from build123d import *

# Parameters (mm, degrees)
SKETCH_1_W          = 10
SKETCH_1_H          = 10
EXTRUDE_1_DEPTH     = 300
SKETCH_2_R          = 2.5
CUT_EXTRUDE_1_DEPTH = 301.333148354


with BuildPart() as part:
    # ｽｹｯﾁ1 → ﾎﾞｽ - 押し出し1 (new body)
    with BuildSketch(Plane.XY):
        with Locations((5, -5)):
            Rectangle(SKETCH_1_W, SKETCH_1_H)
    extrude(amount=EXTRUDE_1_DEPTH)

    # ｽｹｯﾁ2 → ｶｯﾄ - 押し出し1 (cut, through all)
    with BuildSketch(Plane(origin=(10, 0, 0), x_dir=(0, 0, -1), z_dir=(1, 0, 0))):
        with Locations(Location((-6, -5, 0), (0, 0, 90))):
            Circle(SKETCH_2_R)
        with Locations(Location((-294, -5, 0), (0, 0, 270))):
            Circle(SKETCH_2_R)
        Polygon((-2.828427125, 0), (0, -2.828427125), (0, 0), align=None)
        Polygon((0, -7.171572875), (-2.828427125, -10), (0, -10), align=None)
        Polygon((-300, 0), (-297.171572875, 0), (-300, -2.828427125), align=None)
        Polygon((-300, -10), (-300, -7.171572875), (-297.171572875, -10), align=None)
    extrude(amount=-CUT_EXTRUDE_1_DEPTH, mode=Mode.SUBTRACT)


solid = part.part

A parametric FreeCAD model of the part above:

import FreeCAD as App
import Part
import Sketcher
from FreeCAD import Vector
Q = App.Units.Quantity


def add_polygon(sketch, points):
    """Adds a closed chain of lines whose ends are joined by coincident constraints."""
    first, n = sketch.GeometryCount, len(points)
    for a, b in zip(points, points[1:] + points[:1]):
        sketch.addGeometry(Part.LineSegment(App.Vector(*a, 0), App.Vector(*b, 0)), False)
    for i in range(n):
        sketch.addConstraint(Sketcher.Constraint("Coincident", first + i, 2, first + (i + 1) % n, 1))

doc = App.newDocument("Part")
body = doc.addObject("PartDesign::Body", "Body")

# Sketch on XY plane
sketch1 = body.newObject("Sketcher::SketchObject", "Sketch")
sketch1.AttachmentSupport = (doc.getObject("XY_Plane"), [""])
sketch1.MapMode = "FlatFace"
add_polygon(sketch1, [(0, 0), (0, -10), (10, -10), (10, 0)])  # lines 0-3
sketch1.addConstraint([
    Sketcher.Constraint("Vertical", 0),
    Sketcher.Constraint("Horizontal", 1),
    Sketcher.Constraint("Vertical", 2),
    Sketcher.Constraint("Horizontal", 3),
    Sketcher.Constraint("Coincident", 3, 2, -1, 1),
    Sketcher.Constraint("Equal", 3, 0),
    Sketcher.Constraint("DistanceX", 1, 1, 1, 2, Q("10 mm")),
])
pad1 = body.newObject("PartDesign::Pad", "Pad")
pad1.Profile = sketch1
pad1.Length = 300

# Sketch on YZ plane
sketch2 = body.newObject("Sketcher::SketchObject", "Sketch001")
sketch2.AttachmentSupport = (doc.getObject("YZ_Plane"), [""])
sketch2.MapMode = "FlatFace"
sketch2.AttachmentOffset = App.Placement(Vector(0, 0, 10), App.Rotation())
sketch2.addGeometry(Part.Circle(Vector(-5, 6, 0), Vector(0, 0, 1), 2.5), False)  # 0
sketch2.addGeometry(Part.Circle(Vector(-5, 294, 0), Vector(0, 0, 1), 2.5), False)  # 1
add_polygon(sketch2, [(0, 2.8), (-2.8, 0), (0, 0)])  # lines 2-4
add_polygon(sketch2, [(-7.2, 0), (-10, 2.8), (-10, 0)])  # lines 5-7
add_polygon(sketch2, [(0, 297.2), (0, 300), (-2.8, 300)])  # lines 8-10
add_polygon(sketch2, [(-7.2, 300), (-10, 300), (-10, 297.2)])  # lines 11-13
sketch2.addConstraint([
    Sketcher.Constraint("Horizontal", 3),
    Sketcher.Constraint("Vertical", 4),
    Sketcher.Constraint("Vertical", 6),
    Sketcher.Constraint("Horizontal", 7),
    Sketcher.Constraint("Vertical", 8),
    Sketcher.Constraint("Horizontal", 9),
    Sketcher.Constraint("Horizontal", 11),
    Sketcher.Constraint("Vertical", 12),
    Sketcher.Constraint("Coincident", 3, 2, -1, 1),
    Sketcher.Constraint("Equal", 0, 1),
    Sketcher.Constraint("PointOnObject", 6, 2, -1),
    Sketcher.Constraint("PointOnObject", 8, 2, -2),
    Sketcher.Constraint("Perpendicular", 2, 5),
    Sketcher.Constraint("Parallel", 5, 10),
    Sketcher.Constraint("Perpendicular", 10, 13),
    Sketcher.Constraint("Horizontal", 4, 2, 5, 2),
    Sketcher.Constraint("Horizontal", 9, 2, 11, 2),
    Sketcher.Constraint("Horizontal", 10, 2, 12, 2),
    Sketcher.Constraint("Vertical", 0, 3, 1, 3),
    Sketcher.Constraint("Vertical", 2, 2, 9, 2),
    Sketcher.Constraint("Vertical", 6, 2, 11, 2),
    Sketcher.Constraint("Vertical", 7, 2, 13, 2),
    Sketcher.Constraint("Diameter", 0, Q("5 mm")),
    Sketcher.Constraint("Distance", 2, Q("4 mm")),
    Sketcher.Constraint("DistanceX", 0, 3, -1, 1, Q("5 mm")),
    Sketcher.Constraint("DistanceY", -1, 1, 0, 3, Q("6 mm")),
    Sketcher.Constraint("DistanceY", -1, 1, 1, 3, Q("294 mm")),
    Sketcher.Constraint("DistanceX", 5, 2, -1, 1, Q("10 mm")),
    Sketcher.Constraint("DistanceY", -1, 1, 8, 2, Q("300 mm")),
])
pocket1 = body.newObject("PartDesign::Pocket", "Pocket")
pocket1.Profile = sketch2
pocket1.Type = "ThroughAll"

doc.recompute()
